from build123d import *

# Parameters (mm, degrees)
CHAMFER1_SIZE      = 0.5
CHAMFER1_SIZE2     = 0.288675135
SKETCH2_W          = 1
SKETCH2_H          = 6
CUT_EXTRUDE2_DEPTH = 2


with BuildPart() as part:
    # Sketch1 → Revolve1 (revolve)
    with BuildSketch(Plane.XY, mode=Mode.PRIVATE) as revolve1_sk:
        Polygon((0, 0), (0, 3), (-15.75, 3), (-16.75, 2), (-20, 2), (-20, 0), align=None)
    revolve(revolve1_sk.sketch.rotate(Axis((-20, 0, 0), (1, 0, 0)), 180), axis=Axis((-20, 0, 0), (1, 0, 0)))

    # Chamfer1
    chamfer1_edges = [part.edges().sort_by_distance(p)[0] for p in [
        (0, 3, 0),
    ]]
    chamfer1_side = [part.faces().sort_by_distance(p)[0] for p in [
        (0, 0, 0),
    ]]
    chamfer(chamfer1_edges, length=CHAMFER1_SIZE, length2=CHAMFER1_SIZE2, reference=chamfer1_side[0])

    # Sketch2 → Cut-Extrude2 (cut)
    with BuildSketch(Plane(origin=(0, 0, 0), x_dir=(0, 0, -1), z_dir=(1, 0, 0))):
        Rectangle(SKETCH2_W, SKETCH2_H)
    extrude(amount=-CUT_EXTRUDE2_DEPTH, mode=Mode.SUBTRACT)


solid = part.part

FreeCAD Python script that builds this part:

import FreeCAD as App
import Part
import Sketcher

V = App.Vector
Q = App.Units.Quantity


def edges_at(feature, points):
    """Names of the edges that pass closest to the given points."""
    edges = feature.Shape.Edges
    near = lambda p: min(range(len(edges)), key=lambda i: edges[i].distToShape(Part.Vertex(*p))[0])
    return sorted({f"Edge{near(p) + 1}" for p in points})

doc = App.newDocument("Part")
body = doc.addObject("PartDesign::Body", "Body")

sketch1 = body.newObject("Sketcher::SketchObject", "Sketch")
sketch1.AttachmentSupport = (doc.getObject("XY_Plane"), [""])
sketch1.MapMode = "FlatFace"
sketch1.addGeometry([
    Part.LineSegment(V(0, 0, 0), V(0, 3, 0)),
    Part.LineSegment(V(0, 3, 0), V(-15.8, 3, 0)),
    Part.LineSegment(V(-15.8, 3, 0), V(-16.8, 2, 0)),
    Part.LineSegment(V(-16.8, 2, 0), V(-20, 2, 0)),
    Part.LineSegment(V(-20, 2, 0), V(-20, 0, 0)),
    Part.LineSegment(V(-20, 0, 0), V(0, 0, 0)),
], False)
sketch1.addConstraint([
    Sketcher.Constraint("Coincident", 0, 2, 1, 1),
    Sketcher.Constraint("Coincident", 1, 2, 2, 1),
    Sketcher.Constraint("Coincident", 2, 2, 3, 1),
    Sketcher.Constraint("Coincident", 3, 2, 4, 1),
    Sketcher.Constraint("Coincident", 4, 2, 5, 1),
    Sketcher.Constraint("Coincident", 5, 2, 0, 1),
    Sketcher.Constraint("Vertical", 0),
    Sketcher.Constraint("Horizontal", 1),
    Sketcher.Constraint("Horizontal", 3),
    Sketcher.Constraint("Vertical", 4),
    Sketcher.Constraint("Horizontal", 5),
    Sketcher.Constraint("Coincident", 5, 2, -1, 1),
    Sketcher.Constraint("DistanceX", 5, 1, 5, 2, 20.0),
    Sketcher.Constraint("DistanceY", 0, 1, 0, 2, 3.0),
    Sketcher.Constraint("DistanceY", 4, 2, 4, 1, 2.0),
    Sketcher.Constraint("Angle", 2, Q("-135 deg")),
    Sketcher.Constraint("DistanceX", 1, 2, 1, 1, 15.75),
])
revolution = body.newObject("PartDesign::Revolution", "Revolution")
revolution.Profile = sketch1
revolution.ReferenceAxis = (sketch1, ["H_Axis"])
revolution.Angle = 360
doc.recompute()

chamfer = body.newObject("PartDesign::Chamfer", "Chamfer")
chamfer.Base = (revolution, edges_at(revolution, [(0, 3, 0)]))
chamfer.ChamferType = "Two distances"
chamfer.Size = 0.5
chamfer.Size2 = 0.288675

sketch2 = body.newObject("Sketcher::SketchObject", "Sketch001")
sketch2.AttachmentSupport = (doc.getObject("YZ_Plane"), [""])
sketch2.MapMode = "FlatFace"
sketch2.addGeometry([
    Part.LineSegment(V(3, 0.5, 0), V(-3, 0.5, 0)),
    Part.LineSegment(V(-3, 0.5, 0), V(-3, -0.5, 0)),
    Part.LineSegment(V(-3, -0.5, 0), V(3, -0.5, 0)),
    Part.LineSegment(V(3, -0.5, 0), V(3, 0.5, 0)),
], False)
sketch2.addConstraint([
    Sketcher.Constraint("Coincident", 0, 2, 1, 1),
    Sketcher.Constraint("Coincident", 1, 2, 2, 1),
    Sketcher.Constraint("Coincident", 2, 2, 3, 1),
    Sketcher.Constraint("Coincident", 3, 2, 0, 1),
    Sketcher.Constraint("Horizontal", 0),
    Sketcher.Constraint("Vertical", 1),
    Sketcher.Constraint("Horizontal", 2),
    Sketcher.Constraint("Vertical", 3),
    Sketcher.Constraint("Symmetric", 0, 2, 2, 2, -1, 1),
    Sketcher.Constraint("DistanceX", 0, 2, 0, 1, 6.0),
    Sketcher.Constraint("DistanceY", 1, 2, 1, 1, 1.0),
])
pocket1 = body.newObject("PartDesign::Pocket", "Pocket")
pocket1.Profile = sketch2
pocket1.Length = 2

doc.recompute()
